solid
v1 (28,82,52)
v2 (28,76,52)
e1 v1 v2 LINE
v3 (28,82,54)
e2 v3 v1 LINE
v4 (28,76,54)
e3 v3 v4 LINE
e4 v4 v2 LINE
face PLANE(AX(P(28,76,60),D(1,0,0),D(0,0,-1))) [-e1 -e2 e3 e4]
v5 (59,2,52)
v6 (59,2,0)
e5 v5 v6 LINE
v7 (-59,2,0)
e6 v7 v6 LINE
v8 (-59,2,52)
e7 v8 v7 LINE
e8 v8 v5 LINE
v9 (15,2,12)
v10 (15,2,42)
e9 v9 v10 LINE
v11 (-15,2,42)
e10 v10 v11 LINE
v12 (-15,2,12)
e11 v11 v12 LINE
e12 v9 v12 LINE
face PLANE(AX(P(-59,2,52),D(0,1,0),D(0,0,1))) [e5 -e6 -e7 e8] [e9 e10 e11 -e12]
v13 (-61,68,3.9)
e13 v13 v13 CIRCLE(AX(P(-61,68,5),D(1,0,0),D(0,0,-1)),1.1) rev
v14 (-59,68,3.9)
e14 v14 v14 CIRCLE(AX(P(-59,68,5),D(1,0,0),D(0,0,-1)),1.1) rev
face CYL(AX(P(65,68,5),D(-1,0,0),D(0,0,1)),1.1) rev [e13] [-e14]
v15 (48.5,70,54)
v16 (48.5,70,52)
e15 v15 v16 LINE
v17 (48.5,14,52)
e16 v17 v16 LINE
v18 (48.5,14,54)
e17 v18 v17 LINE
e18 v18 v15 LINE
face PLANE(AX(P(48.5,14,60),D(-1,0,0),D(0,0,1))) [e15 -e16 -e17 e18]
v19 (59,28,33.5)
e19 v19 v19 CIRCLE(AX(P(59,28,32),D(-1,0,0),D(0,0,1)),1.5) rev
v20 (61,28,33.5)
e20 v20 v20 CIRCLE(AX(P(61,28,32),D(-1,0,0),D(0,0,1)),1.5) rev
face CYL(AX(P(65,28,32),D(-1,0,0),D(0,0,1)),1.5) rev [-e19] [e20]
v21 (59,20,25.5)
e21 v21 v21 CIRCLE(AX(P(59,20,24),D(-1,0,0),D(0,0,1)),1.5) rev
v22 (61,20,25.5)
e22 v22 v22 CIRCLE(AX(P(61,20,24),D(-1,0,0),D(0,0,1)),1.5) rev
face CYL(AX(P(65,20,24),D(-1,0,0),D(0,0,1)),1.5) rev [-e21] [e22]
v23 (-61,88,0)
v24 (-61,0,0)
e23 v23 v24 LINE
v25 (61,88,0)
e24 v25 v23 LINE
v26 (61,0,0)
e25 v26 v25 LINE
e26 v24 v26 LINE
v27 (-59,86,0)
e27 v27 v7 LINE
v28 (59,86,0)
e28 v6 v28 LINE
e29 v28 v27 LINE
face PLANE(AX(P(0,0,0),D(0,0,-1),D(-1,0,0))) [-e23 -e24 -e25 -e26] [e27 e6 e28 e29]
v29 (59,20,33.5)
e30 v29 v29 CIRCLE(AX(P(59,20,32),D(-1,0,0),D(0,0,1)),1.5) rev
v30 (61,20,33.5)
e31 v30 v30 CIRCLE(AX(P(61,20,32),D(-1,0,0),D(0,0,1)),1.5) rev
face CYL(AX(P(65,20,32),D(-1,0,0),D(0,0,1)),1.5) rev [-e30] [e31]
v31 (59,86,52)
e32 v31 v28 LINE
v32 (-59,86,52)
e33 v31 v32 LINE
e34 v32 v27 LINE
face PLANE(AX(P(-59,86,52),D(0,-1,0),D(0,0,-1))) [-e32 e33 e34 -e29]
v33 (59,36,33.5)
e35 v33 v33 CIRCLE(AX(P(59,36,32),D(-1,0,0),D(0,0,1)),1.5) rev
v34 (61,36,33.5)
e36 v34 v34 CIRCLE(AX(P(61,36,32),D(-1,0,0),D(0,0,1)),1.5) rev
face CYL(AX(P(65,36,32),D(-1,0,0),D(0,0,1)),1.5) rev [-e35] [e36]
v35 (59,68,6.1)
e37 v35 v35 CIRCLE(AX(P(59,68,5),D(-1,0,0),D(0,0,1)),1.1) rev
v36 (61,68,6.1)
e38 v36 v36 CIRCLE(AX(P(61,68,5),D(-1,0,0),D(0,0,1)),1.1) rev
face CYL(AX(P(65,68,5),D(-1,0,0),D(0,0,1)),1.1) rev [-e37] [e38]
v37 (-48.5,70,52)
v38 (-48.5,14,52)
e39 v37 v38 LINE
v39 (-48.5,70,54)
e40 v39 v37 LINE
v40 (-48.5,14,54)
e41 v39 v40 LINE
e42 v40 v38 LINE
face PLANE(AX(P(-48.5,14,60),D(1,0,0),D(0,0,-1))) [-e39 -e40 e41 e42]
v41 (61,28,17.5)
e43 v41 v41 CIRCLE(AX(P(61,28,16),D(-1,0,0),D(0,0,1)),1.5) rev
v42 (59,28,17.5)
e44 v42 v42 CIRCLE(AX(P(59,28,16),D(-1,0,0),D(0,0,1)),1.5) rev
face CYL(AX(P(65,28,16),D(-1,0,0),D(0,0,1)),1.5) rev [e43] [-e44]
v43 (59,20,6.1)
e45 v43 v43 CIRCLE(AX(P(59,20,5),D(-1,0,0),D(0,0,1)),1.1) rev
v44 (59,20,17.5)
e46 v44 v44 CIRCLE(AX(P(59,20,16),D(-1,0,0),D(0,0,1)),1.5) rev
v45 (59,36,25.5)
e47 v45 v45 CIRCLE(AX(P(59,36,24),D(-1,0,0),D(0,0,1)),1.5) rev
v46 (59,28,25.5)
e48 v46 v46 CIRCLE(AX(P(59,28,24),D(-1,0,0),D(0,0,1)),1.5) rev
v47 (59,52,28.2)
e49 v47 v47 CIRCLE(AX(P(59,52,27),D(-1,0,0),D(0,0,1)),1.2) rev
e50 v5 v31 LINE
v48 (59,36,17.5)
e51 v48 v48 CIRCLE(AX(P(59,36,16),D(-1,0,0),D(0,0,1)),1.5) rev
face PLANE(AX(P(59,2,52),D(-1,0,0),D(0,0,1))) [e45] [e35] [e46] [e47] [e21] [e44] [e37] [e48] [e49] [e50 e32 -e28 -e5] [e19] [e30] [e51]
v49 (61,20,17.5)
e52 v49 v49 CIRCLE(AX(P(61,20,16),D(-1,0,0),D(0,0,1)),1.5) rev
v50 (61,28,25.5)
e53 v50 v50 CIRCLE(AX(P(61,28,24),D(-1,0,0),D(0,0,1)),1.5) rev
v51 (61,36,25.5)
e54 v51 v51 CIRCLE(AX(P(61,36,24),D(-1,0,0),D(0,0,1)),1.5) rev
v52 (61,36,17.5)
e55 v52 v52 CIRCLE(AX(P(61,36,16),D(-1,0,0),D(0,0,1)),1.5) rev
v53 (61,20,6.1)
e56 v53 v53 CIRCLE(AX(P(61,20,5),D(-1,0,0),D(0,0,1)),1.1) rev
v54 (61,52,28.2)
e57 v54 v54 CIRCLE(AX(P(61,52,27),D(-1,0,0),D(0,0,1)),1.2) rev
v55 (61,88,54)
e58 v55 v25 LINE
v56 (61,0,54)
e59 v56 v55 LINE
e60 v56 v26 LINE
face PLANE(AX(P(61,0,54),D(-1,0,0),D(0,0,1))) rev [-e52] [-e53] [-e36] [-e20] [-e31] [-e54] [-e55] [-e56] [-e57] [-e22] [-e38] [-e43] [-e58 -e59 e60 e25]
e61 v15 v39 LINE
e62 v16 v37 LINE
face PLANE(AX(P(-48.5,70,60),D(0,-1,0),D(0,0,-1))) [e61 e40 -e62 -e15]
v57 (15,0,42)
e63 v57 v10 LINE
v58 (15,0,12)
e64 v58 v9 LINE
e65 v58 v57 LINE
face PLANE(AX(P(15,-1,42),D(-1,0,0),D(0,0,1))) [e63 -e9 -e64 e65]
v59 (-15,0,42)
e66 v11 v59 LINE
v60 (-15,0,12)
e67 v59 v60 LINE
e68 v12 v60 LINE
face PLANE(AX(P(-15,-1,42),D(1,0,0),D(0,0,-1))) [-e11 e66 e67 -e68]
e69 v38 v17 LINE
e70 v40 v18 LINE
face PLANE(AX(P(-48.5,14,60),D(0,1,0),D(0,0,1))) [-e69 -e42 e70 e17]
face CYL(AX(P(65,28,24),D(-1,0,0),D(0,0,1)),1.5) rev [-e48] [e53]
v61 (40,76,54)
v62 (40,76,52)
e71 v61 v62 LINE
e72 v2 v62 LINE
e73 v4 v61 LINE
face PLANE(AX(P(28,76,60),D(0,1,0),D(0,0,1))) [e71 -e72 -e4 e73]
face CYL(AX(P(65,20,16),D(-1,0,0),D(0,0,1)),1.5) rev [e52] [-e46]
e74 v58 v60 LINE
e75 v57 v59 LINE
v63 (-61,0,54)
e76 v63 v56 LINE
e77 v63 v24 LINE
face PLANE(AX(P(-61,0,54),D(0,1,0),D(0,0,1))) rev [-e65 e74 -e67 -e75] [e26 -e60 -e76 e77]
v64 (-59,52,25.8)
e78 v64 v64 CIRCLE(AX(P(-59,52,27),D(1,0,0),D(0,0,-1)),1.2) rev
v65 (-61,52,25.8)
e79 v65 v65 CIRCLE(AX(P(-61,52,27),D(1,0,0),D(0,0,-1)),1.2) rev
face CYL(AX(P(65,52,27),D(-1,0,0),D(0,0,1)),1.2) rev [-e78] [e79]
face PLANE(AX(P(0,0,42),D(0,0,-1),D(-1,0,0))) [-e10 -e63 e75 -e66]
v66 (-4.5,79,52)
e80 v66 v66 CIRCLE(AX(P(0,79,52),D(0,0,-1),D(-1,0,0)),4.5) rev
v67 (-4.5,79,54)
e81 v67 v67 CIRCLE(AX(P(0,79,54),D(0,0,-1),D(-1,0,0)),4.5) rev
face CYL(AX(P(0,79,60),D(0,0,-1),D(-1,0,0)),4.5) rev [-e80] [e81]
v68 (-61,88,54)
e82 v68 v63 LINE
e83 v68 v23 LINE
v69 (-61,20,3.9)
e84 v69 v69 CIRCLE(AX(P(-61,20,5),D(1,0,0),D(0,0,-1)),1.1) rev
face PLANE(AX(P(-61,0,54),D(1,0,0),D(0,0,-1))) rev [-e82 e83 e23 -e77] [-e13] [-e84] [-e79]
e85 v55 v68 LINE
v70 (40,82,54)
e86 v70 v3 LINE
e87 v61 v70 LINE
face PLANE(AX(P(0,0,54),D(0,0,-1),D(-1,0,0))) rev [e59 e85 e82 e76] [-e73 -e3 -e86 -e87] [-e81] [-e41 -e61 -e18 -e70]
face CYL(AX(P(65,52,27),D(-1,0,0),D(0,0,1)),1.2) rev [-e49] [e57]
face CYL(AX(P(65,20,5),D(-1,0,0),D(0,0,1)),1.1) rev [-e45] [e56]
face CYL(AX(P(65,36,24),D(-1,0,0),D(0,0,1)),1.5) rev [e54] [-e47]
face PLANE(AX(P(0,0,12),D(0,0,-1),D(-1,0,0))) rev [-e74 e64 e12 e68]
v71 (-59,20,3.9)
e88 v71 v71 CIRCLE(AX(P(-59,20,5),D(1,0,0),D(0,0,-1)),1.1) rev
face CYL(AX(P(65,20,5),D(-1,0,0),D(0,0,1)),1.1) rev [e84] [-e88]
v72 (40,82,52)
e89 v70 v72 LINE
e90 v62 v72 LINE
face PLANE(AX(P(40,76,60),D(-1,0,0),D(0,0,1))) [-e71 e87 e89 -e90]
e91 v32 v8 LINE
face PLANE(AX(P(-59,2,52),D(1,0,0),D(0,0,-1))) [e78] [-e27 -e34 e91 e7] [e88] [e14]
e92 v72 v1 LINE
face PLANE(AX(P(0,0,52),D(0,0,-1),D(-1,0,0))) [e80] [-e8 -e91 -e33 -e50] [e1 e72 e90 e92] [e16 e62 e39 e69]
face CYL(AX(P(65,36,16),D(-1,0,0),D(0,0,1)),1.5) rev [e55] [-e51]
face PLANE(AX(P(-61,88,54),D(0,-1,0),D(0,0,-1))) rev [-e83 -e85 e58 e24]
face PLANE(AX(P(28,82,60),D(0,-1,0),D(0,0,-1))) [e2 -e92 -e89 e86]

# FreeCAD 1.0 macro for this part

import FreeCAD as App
import Part
import Sketcher

doc = App.newDocument("Part")
body = doc.addObject("PartDesign::Body", "Body")

sketch1 = body.newObject("Sketcher::SketchObject", "Sketch")
sketch1.AttachmentSupport = (doc.getObject("XY_Plane"), [""])
sketch1.MapMode = "FlatFace"
sketch1.addGeometry(Part.LineSegment(App.Vector(-61, 88, 0), App.Vector(-61, 0, 0)), False)
sketch1.addGeometry(Part.LineSegment(App.Vector(-61, 0, 0), App.Vector(61, 0, 0)), False)
sketch1.addGeometry(Part.LineSegment(App.Vector(61, 0, 0), App.Vector(61, 88, 0)), False)
sketch1.addGeometry(Part.LineSegment(App.Vector(61, 88, 0), App.Vector(-61, 88, 0)), False)
sketch1.addConstraint(Sketcher.Constraint("Coincident", 0, 2, 1, 1))
sketch1.addConstraint(Sketcher.Constraint("Coincident", 1, 2, 2, 1))
sketch1.addConstraint(Sketcher.Constraint("Coincident", 2, 2, 3, 1))
sketch1.addConstraint(Sketcher.Constraint("Coincident", 3, 2, 0, 1))
sketch1.addConstraint(Sketcher.Constraint("Vertical", 0))
sketch1.addConstraint(Sketcher.Constraint("Horizontal", 1))
sketch1.addConstraint(Sketcher.Constraint("Vertical", 2))
sketch1.addConstraint(Sketcher.Constraint("Horizontal", 3))
sketch1.addConstraint(Sketcher.Constraint("Symmetric", 0, 2, 1, 2, -1, 1))
sketch1.addConstraint(Sketcher.Constraint("DistanceX", 1, 1, 1, 2, 122.0))
sketch1.addConstraint(Sketcher.Constraint("DistanceY", 0, 2, 0, 1, 88.0))
pad1 = body.newObject("PartDesign::Pad", "Pad")
pad1.Profile = sketch1
pad1.Length = 54
body2 = doc.addObject("PartDesign::Body", "Body001")

sketch2 = body2.newObject("Sketcher::SketchObject", "Sketch001")
sketch2.AttachmentSupport = (doc.getObject("XY_Plane001"), [""])
sketch2.MapMode = "FlatFace"
sketch2.AttachmentOffset = App.Placement(App.Vector(0, 0, -1), App.Rotation())
sketch2.addGeometry(Part.LineSegment(App.Vector(-59, 86, 0), App.Vector(-59, 2, 0)), False)
sketch2.addGeometry(Part.LineSegment(App.Vector(-59, 2, 0), App.Vector(59, 2, 0)), False)
sketch2.addGeometry(Part.LineSegment(App.Vector(59, 2, 0), App.Vector(59, 86, 0)), False)
sketch2.addGeometry(Part.LineSegment(App.Vector(59, 86, 0), App.Vector(-59, 86, 0)), False)
sketch2.addConstraint(Sketcher.Constraint("Coincident", 0, 2, 1, 1))
sketch2.addConstraint(Sketcher.Constraint("Coincident", 1, 2, 2, 1))
sketch2.addConstraint(Sketcher.Constraint("Coincident", 2, 2, 3, 1))
sketch2.addConstraint(Sketcher.Constraint("Coincident", 3, 2, 0, 1))
sketch2.addConstraint(Sketcher.Constraint("Vertical", 0))
sketch2.addConstraint(Sketcher.Constraint("Horizontal", 1))
sketch2.addConstraint(Sketcher.Constraint("Vertical", 2))
sketch2.addConstraint(Sketcher.Constraint("Horizontal", 3))
sketch2.addConstraint(Sketcher.Constraint("DistanceX", 1, 1, 1, 2, 118.0))
sketch2.addConstraint(Sketcher.Constraint("DistanceY", 0, 2, 0, 1, 84.0))
sketch2.addConstraint(Sketcher.Constraint("DistanceX", 0, 2, -1, 1, 59.0))
sketch2.addConstraint(Sketcher.Constraint("DistanceY", -1, 1, 0, 2, 2.0))
pad2 = body2.newObject("PartDesign::Pad", "Pad001")
pad2.Profile = sketch2
pad2.Length = 53
doc.recompute()

boolean = body.newObject("PartDesign::Boolean", "Boolean")
boolean.Type = "Cut"
boolean.addObjects([body2])
body3 = doc.addObject("PartDesign::Body", "Body002")

sketch3 = body3.newObject("Sketcher::SketchObject", "Sketch002")
sketch3.AttachmentSupport = (doc.getObject("XY_Plane002"), [""])
sketch3.MapMode = "FlatFace"
sketch3.AttachmentOffset = App.Placement(App.Vector(0, 0, 50), App.Rotation())
sketch3.addGeometry(Part.LineSegment(App.Vector(-48, 70, 0), App.Vector(-48, 14, 0)), False)
sketch3.addGeometry(Part.LineSegment(App.Vector(-48, 14, 0), App.Vector(48, 14, 0)), False)
sketch3.addGeometry(Part.LineSegment(App.Vector(48, 14, 0), App.Vector(48, 70, 0)), False)
sketch3.addGeometry(Part.LineSegment(App.Vector(48, 70, 0), App.Vector(-48, 70, 0)), False)
sketch3.addConstraint(Sketcher.Constraint("Coincident", 0, 2, 1, 1))
sketch3.addConstraint(Sketcher.Constraint("Coincident", 1, 2, 2, 1))
sketch3.addConstraint(Sketcher.Constraint("Coincident", 2, 2, 3, 1))
sketch3.addConstraint(Sketcher.Constraint("Coincident", 3, 2, 0, 1))
sketch3.addConstraint(Sketcher.Constraint("Vertical", 0))
sketch3.addConstraint(Sketcher.Constraint("Horizontal", 1))
sketch3.addConstraint(Sketcher.Constraint("Vertical", 2))
sketch3.addConstraint(Sketcher.Constraint("Horizontal", 3))
sketch3.addConstraint(Sketcher.Constraint("DistanceX", 1, 1, 1, 2, 97.0))
sketch3.addConstraint(Sketcher.Constraint("DistanceY", 0, 2, 0, 1, 56.0))
sketch3.addConstraint(Sketcher.Constraint("DistanceY", -1, 1, 0, 2, 14.0))
sketch3.addConstraint(Sketcher.Constraint("DistanceX", 0, 2, -1, 1, 48.5))
pad3 = body3.newObject("PartDesign::Pad", "Pad002")
pad3.Profile = sketch3
pad3.Length = 10
doc.recompute()

boolean2 = body.newObject("PartDesign::Boolean", "Boolean001")
boolean2.Type = "Cut"
boolean2.addObjects([body3])
body4 = doc.addObject("PartDesign::Body", "Body003")

sketch4 = body4.newObject("Sketcher::SketchObject", "Sketch003")
sketch4.AttachmentSupport = (doc.getObject("XY_Plane003"), [""])
sketch4.MapMode = "FlatFace"
sketch4.AttachmentOffset = App.Placement(App.Vector(0, 0, 50), App.Rotation())
sketch4.addGeometry(Part.Circle(App.Vector(0, 79, 0), App.Vector(0, 0, 1), 4.5), False)
sketch4.addConstraint(Sketcher.Constraint("PointOnObject", 0, 3, -2))
sketch4.addConstraint(Sketcher.Constraint("Diameter", 0, 9.0))
sketch4.addConstraint(Sketcher.Constraint("DistanceY", -1, 1, 0, 3, 79.0))
pad4 = body4.newObject("PartDesign::Pad", "Pad003")
pad4.Profile = sketch4
pad4.Length = 10
doc.recompute()

boolean3 = body.newObject("PartDesign::Boolean", "Boolean002")
boolean3.Type = "Cut"
boolean3.addObjects([body4])
body5 = doc.addObject("PartDesign::Body", "Body004")

sketch5 = body5.newObject("Sketcher::SketchObject", "Sketch004")
sketch5.AttachmentSupport = (doc.getObject("XY_Plane004"), [""])
sketch5.MapMode = "FlatFace"
sketch5.AttachmentOffset = App.Placement(App.Vector(0, 0, 50), App.Rotation())
sketch5.addGeometry(Part.LineSegment(App.Vector(28, 82, 0), App.Vector(28, 76, 0)), False)
sketch5.addGeometry(Part.LineSegment(App.Vector(28, 76, 0), App.Vector(40, 76, 0)), False)
sketch5.addGeometry(Part.LineSegment(App.Vector(40, 76, 0), App.Vector(40, 82, 0)), False)
sketch5.addGeometry(Part.LineSegment(App.Vector(40, 82, 0), App.Vector(28, 82, 0)), False)
sketch5.addConstraint(Sketcher.Constraint("Coincident", 0, 2, 1, 1))
sketch5.addConstraint(Sketcher.Constraint("Coincident", 1, 2, 2, 1))
sketch5.addConstraint(Sketcher.Constraint("Coincident", 2, 2, 3, 1))
sketch5.addConstraint(Sketcher.Constraint("Coincident", 3, 2, 0, 1))
sketch5.addConstraint(Sketcher.Constraint("Vertical", 0))
sketch5.addConstraint(Sketcher.Constraint("Horizontal", 1))
sketch5.addConstraint(Sketcher.Constraint("Vertical", 2))
sketch5.addConstraint(Sketcher.Constraint("Horizontal", 3))
sketch5.addConstraint(Sketcher.Constraint("DistanceX", 1, 1, 1, 2, 12.0))
sketch5.addConstraint(Sketcher.Constraint("DistanceY", 0, 2, 0, 1, 6.0))
sketch5.addConstraint(Sketcher.Constraint("DistanceX", -1, 1, 0, 2, 28.0))
sketch5.addConstraint(Sketcher.Constraint("DistanceY", -1, 1, 0, 2, 76.0))
pad5 = body5.newObject("PartDesign::Pad", "Pad004")
pad5.Profile = sketch5
pad5.Length = 10
doc.recompute()

boolean4 = body.newObject("PartDesign::Boolean", "Boolean003")
boolean4.Type = "Cut"
boolean4.addObjects([body5])
body6 = doc.addObject("PartDesign::Body", "Body005")

sketch6 = body6.newObject("Sketcher::SketchObject", "Sketch005")
sketch6.AttachmentSupport = (doc.getObject("YZ_Plane005"), [""])
sketch6.MapMode = "FlatFace"
sketch6.AttachmentOffset = App.Placement(App.Vector(0, 0, -65), App.Rotation())
sketch6.addGeometry(Part.Circle(App.Vector(52, 27, 0), App.Vector(0, 0, 1), 1.2), False)
sketch6.addConstraint(Sketcher.Constraint("Diameter", 0, 2.4))
sketch6.addConstraint(Sketcher.Constraint("DistanceX", -1, 1, 0, 3, 52.0))
sketch6.addConstraint(Sketcher.Constraint("DistanceY", -1, 1, 0, 3, 27.0))
pad6 = body6.newObject("PartDesign::Pad", "Pad005")
pad6.Profile = sketch6
pad6.Length = 130
doc.recompute()

boolean5 = body.newObject("PartDesign::Boolean", "Boolean004")
boolean5.Type = "Cut"
boolean5.addObjects([body6])
body7 = doc.addObject("PartDesign::Body", "Body006")

sketch7 = body7.newObject("Sketcher::SketchObject", "Sketch006")
sketch7.AttachmentSupport = (doc.getObject("YZ_Plane006"), [""])
sketch7.MapMode = "FlatFace"
sketch7.AttachmentOffset = App.Placement(App.Vector(0, 0, 55), App.Rotation())
sketch7.addGeometry(Part.Circle(App.Vector(20, 16, 0), App.Vector(0, 0, 1), 1.5), False)
sketch7.addConstraint(Sketcher.Constraint("Diameter", 0, 3.0))
sketch7.addConstraint(Sketcher.Constraint("DistanceX", -1, 1, 0, 3, 20.0))
sketch7.addConstraint(Sketcher.Constraint("DistanceY", -1, 1, 0, 3, 16.0))
pad7 = body7.newObject("PartDesign::Pad", "Pad006")
pad7.Profile = sketch7
pad7.Length = 10
doc.recompute()

boolean6 = body.newObject("PartDesign::Boolean", "Boolean005")
boolean6.Type = "Cut"
boolean6.addObjects([body7])
body8 = doc.addObject("PartDesign::Body", "Body007")

sketch8 = body8.newObject("Sketcher::SketchObject", "Sketch007")
sketch8.AttachmentSupport = (doc.getObject("YZ_Plane007"), [""])
sketch8.MapMode = "FlatFace"
sketch8.AttachmentOffset = App.Placement(App.Vector(0, 0, 55), App.Rotation())
sketch8.addGeometry(Part.Circle(App.Vector(20, 24, 0), App.Vector(0, 0, 1), 1.5), False)
sketch8.addConstraint(Sketcher.Constraint("Diameter", 0, 3.0))
sketch8.addConstraint(Sketcher.Constraint("DistanceX", -1, 1, 0, 3, 20.0))
sketch8.addConstraint(Sketcher.Constraint("DistanceY", -1, 1, 0, 3, 24.0))
pad8 = body8.newObject("PartDesign::Pad", "Pad007")
pad8.Profile = sketch8
pad8.Length = 10
doc.recompute()

boolean7 = body.newObject("PartDesign::Boolean", "Boolean006")
boolean7.Type = "Cut"
boolean7.addObjects([body8])
body9 = doc.addObject("PartDesign::Body", "Body008")

sketch9 = body9.newObject("Sketcher::SketchObject", "Sketch008")
sketch9.AttachmentSupport = (doc.getObject("YZ_Plane008"), [""])
sketch9.MapMode = "FlatFace"
sketch9.AttachmentOffset = App.Placement(App.Vector(0, 0, 55), App.Rotation())
sketch9.addGeometry(Part.Circle(App.Vector(20, 32, 0), App.Vector(0, 0, 1), 1.5), False)
sketch9.addConstraint(Sketcher.Constraint("Diameter", 0, 3.0))
sketch9.addConstraint(Sketcher.Constraint("DistanceX", -1, 1, 0, 3, 20.0))
sketch9.addConstraint(Sketcher.Constraint("DistanceY", -1, 1, 0, 3, 32.0))
pad9 = body9.newObject("PartDesign::Pad", "Pad008")
pad9.Profile = sketch9
pad9.Length = 10
doc.recompute()

boolean8 = body.newObject("PartDesign::Boolean", "Boolean007")
boolean8.Type = "Cut"
boolean8.addObjects([body9])
body10 = doc.addObject("PartDesign::Body", "Body009")

sketch10 = body10.newObject("Sketcher::SketchObject", "Sketch009")
sketch10.AttachmentSupport = (doc.getObject("YZ_Plane009"), [""])
sketch10.MapMode = "FlatFace"
sketch10.AttachmentOffset = App.Placement(App.Vector(0, 0, 55), App.Rotation())
sketch10.addGeometry(Part.Circle(App.Vector(28, 16, 0), App.Vector(0, 0, 1), 1.5), False)
sketch10.addConstraint(Sketcher.Constraint("Diameter", 0, 3.0))
sketch10.addConstraint(Sketcher.Constraint("DistanceX", -1, 1, 0, 3, 28.0))
sketch10.addConstraint(Sketcher.Constraint("DistanceY", -1, 1, 0, 3, 16.0))
pad10 = body10.newObject("PartDesign::Pad", "Pad009")
pad10.Profile = sketch10
pad10.Length = 10
doc.recompute()

boolean9 = body.newObject("PartDesign::Boolean", "Boolean008")
boolean9.Type = "Cut"
boolean9.addObjects([body10])
body11 = doc.addObject("PartDesign::Body", "Body010")

sketch11 = body11.newObject("Sketcher::SketchObject", "Sketch010")
sketch11.AttachmentSupport = (doc.getObject("YZ_Plane010"), [""])
sketch11.MapMode = "FlatFace"
sketch11.AttachmentOffset = App.Placement(App.Vector(0, 0, 55), App.Rotation())
sketch11.addGeometry(Part.Circle(App.Vector(28, 24, 0), App.Vector(0, 0, 1), 1.5), False)
sketch11.addConstraint(Sketcher.Constraint("Diameter", 0, 3.0))
sketch11.addConstraint(Sketcher.Constraint("DistanceX", -1, 1, 0, 3, 28.0))
sketch11.addConstraint(Sketcher.Constraint("DistanceY", -1, 1, 0, 3, 24.0))
pad11 = body11.newObject("PartDesign::Pad", "Pad010")
pad11.Profile = sketch11
pad11.Length = 10
doc.recompute()

boolean10 = body.newObject("PartDesign::Boolean", "Boolean009")
boolean10.Type = "Cut"
boolean10.addObjects([body11])
body12 = doc.addObject("PartDesign::Body", "Body011")

sketch12 = body12.newObject("Sketcher::SketchObject", "Sketch011")
sketch12.AttachmentSupport = (doc.getObject("YZ_Plane011"), [""])
sketch12.MapMode = "FlatFace"
sketch12.AttachmentOffset = App.Placement(App.Vector(0, 0, 55), App.Rotation())
sketch12.addGeometry(Part.Circle(App.Vector(28, 32, 0), App.Vector(0, 0, 1), 1.5), False)
sketch12.addConstraint(Sketcher.Constraint("Diameter", 0, 3.0))
sketch12.addConstraint(Sketcher.Constraint("DistanceX", -1, 1, 0, 3, 28.0))
sketch12.addConstraint(Sketcher.Constraint("DistanceY", -1, 1, 0, 3, 32.0))
pad12 = body12.newObject("PartDesign::Pad", "Pad011")
pad12.Profile = sketch12
pad12.Length = 10
doc.recompute()

boolean11 = body.newObject("PartDesign::Boolean", "Boolean010")
boolean11.Type = "Cut"
boolean11.addObjects([body12])
body13 = doc.addObject("PartDesign::Body", "Body012")

sketch13 = body13.newObject("Sketcher::SketchObject", "Sketch012")
sketch13.AttachmentSupport = (doc.getObject("YZ_Plane012"), [""])
sketch13.MapMode = "FlatFace"
sketch13.AttachmentOffset = App.Placement(App.Vector(0, 0, 55), App.Rotation())
sketch13.addGeometry(Part.Circle(App.Vector(36, 16, 0), App.Vector(0, 0, 1), 1.5), False)
sketch13.addConstraint(Sketcher.Constraint("Diameter", 0, 3.0))
sketch13.addConstraint(Sketcher.Constraint("DistanceX", -1, 1, 0, 3, 36.0))
sketch13.addConstraint(Sketcher.Constraint("DistanceY", -1, 1, 0, 3, 16.0))
pad13 = body13.newObject("PartDesign::Pad", "Pad012")
pad13.Profile = sketch13
pad13.Length = 10
doc.recompute()

boolean12 = body.newObject("PartDesign::Boolean", "Boolean011")
boolean12.Type = "Cut"
boolean12.addObjects([body13])
body14 = doc.addObject("PartDesign::Body", "Body013")

sketch14 = body14.newObject("Sketcher::SketchObject", "Sketch013")
sketch14.AttachmentSupport = (doc.getObject("YZ_Plane013"), [""])
sketch14.MapMode = "FlatFace"
sketch14.AttachmentOffset = App.Placement(App.Vector(0, 0, 55), App.Rotation())
sketch14.addGeometry(Part.Circle(App.Vector(36, 24, 0), App.Vector(0, 0, 1), 1.5), False)
sketch14.addConstraint(Sketcher.Constraint("Diameter", 0, 3.0))
sketch14.addConstraint(Sketcher.Constraint("DistanceX", -1, 1, 0, 3, 36.0))
sketch14.addConstraint(Sketcher.Constraint("DistanceY", -1, 1, 0, 3, 24.0))
pad14 = body14.newObject("PartDesign::Pad", "Pad013")
pad14.Profile = sketch14
pad14.Length = 10
doc.recompute()

boolean13 = body.newObject("PartDesign::Boolean", "Boolean012")
boolean13.Type = "Cut"
boolean13.addObjects([body14])
body15 = doc.addObject("PartDesign::Body", "Body014")

sketch15 = body15.newObject("Sketcher::SketchObject", "Sketch014")
sketch15.AttachmentSupport = (doc.getObject("YZ_Plane014"), [""])
sketch15.MapMode = "FlatFace"
sketch15.AttachmentOffset = App.Placement(App.Vector(0, 0, 55), App.Rotation())
sketch15.addGeometry(Part.Circle(App.Vector(36, 32, 0), App.Vector(0, 0, 1), 1.5), False)
sketch15.addConstraint(Sketcher.Constraint("Diameter", 0, 3.0))
sketch15.addConstraint(Sketcher.Constraint("DistanceX", -1, 1, 0, 3, 36.0))
sketch15.addConstraint(Sketcher.Constraint("DistanceY", -1, 1, 0, 3, 32.0))
pad15 = body15.newObject("PartDesign::Pad", "Pad014")
pad15.Profile = sketch15
pad15.Length = 10
doc.recompute()

boolean14 = body.newObject("PartDesign::Boolean", "Boolean013")
boolean14.Type = "Cut"
boolean14.addObjects([body15])
body16 = doc.addObject("PartDesign::Body", "Body015")

sketch16 = body16.newObject("Sketcher::SketchObject", "Sketch015")
sketch16.AttachmentSupport = (doc.getObject("XY_Plane015"), [""])
sketch16.MapMode = "FlatFace"
sketch16.AttachmentOffset = App.Placement(App.Vector(0, 0, 12), App.Rotation())
sketch16.addGeometry(Part.LineSegment(App.Vector(-15, 3, 0), App.Vector(-15, -1, 0)), False)
sketch16.addGeometry(Part.LineSegment(App.Vector(-15, -1, 0), App.Vector(15, -1, 0)), False)
sketch16.addGeometry(Part.LineSegment(App.Vector(15, -1, 0), App.Vector(15, 3, 0)), False)
sketch16.addGeometry(Part.LineSegment(App.Vector(15, 3, 0), App.Vector(-15, 3, 0)), False)
sketch16.addConstraint(Sketcher.Constraint("Coincident", 0, 2, 1, 1))
sketch16.addConstraint(Sketcher.Constraint("Coincident", 1, 2, 2, 1))
sketch16.addConstraint(Sketcher.Constraint("Coincident", 2, 2, 3, 1))
sketch16.addConstraint(Sketcher.Constraint("Coincident", 3, 2, 0, 1))
sketch16.addConstraint(Sketcher.Constraint("Vertical", 0))
sketch16.addConstraint(Sketcher.Constraint("Horizontal", 1))
sketch16.addConstraint(Sketcher.Constraint("Vertical", 2))
sketch16.addConstraint(Sketcher.Constraint("Horizontal", 3))
sketch16.addConstraint(Sketcher.Constraint("DistanceX", 1, 1, 1, 2, 30.0))
sketch16.addConstraint(Sketcher.Constraint("DistanceY", 0, 2, 0, 1, 4.0))
sketch16.addConstraint(Sketcher.Constraint("DistanceX", 0, 2, -1, 1, 15.0))
sketch16.addConstraint(Sketcher.Constraint("DistanceY", 0, 2, -1, 1, 1.0))
pad16 = body16.newObject("PartDesign::Pad", "Pad015")
pad16.Profile = sketch16
pad16.Length = 30
doc.recompute()

boolean15 = body.newObject("PartDesign::Boolean", "Boolean014")
boolean15.Type = "Cut"
boolean15.addObjects([body16])
body17 = doc.addObject("PartDesign::Body", "Body016")

sketch17 = body17.newObject("Sketcher::SketchObject", "Sketch016")
sketch17.AttachmentSupport = (doc.getObject("YZ_Plane016"), [""])
sketch17.MapMode = "FlatFace"
sketch17.AttachmentOffset = App.Placement(App.Vector(0, 0, -65), App.Rotation())
sketch17.addGeometry(Part.Circle(App.Vector(20, 5, 0), App.Vector(0, 0, 1), 1.1), False)
sketch17.addConstraint(Sketcher.Constraint("Diameter", 0, 2.2))
sketch17.addConstraint(Sketcher.Constraint("DistanceX", -1, 1, 0, 3, 20.0))
sketch17.addConstraint(Sketcher.Constraint("DistanceY", -1, 1, 0, 3, 5.0))
pad17 = body17.newObject("PartDesign::Pad", "Pad016")
pad17.Profile = sketch17
pad17.Length = 130
doc.recompute()

boolean16 = body.newObject("PartDesign::Boolean", "Boolean015")
boolean16.Type = "Cut"
boolean16.addObjects([body17])
body18 = doc.addObject("PartDesign::Body", "Body017")

sketch18 = body18.newObject("Sketcher::SketchObject", "Sketch017")
sketch18.AttachmentSupport = (doc.getObject("YZ_Plane017"), [""])
sketch18.MapMode = "FlatFace"
sketch18.AttachmentOffset = App.Placement(App.Vector(0, 0, -65), App.Rotation())
sketch18.addGeometry(Part.Circle(App.Vector(68, 5, 0), App.Vector(0, 0, 1), 1.1), False)
sketch18.addConstraint(Sketcher.Constraint("Diameter", 0, 2.2))
sketch18.addConstraint(Sketcher.Constraint("DistanceX", -1, 1, 0, 3, 68.0))
sketch18.addConstraint(Sketcher.Constraint("DistanceY", -1, 1, 0, 3, 5.0))
pad18 = body18.newObject("PartDesign::Pad", "Pad017")
pad18.Profile = sketch18
pad18.Length = 130
doc.recompute()

boolean17 = body.newObject("PartDesign::Boolean", "Boolean016")
boolean17.Type = "Cut"
boolean17.addObjects([body18])

doc.recompute()
